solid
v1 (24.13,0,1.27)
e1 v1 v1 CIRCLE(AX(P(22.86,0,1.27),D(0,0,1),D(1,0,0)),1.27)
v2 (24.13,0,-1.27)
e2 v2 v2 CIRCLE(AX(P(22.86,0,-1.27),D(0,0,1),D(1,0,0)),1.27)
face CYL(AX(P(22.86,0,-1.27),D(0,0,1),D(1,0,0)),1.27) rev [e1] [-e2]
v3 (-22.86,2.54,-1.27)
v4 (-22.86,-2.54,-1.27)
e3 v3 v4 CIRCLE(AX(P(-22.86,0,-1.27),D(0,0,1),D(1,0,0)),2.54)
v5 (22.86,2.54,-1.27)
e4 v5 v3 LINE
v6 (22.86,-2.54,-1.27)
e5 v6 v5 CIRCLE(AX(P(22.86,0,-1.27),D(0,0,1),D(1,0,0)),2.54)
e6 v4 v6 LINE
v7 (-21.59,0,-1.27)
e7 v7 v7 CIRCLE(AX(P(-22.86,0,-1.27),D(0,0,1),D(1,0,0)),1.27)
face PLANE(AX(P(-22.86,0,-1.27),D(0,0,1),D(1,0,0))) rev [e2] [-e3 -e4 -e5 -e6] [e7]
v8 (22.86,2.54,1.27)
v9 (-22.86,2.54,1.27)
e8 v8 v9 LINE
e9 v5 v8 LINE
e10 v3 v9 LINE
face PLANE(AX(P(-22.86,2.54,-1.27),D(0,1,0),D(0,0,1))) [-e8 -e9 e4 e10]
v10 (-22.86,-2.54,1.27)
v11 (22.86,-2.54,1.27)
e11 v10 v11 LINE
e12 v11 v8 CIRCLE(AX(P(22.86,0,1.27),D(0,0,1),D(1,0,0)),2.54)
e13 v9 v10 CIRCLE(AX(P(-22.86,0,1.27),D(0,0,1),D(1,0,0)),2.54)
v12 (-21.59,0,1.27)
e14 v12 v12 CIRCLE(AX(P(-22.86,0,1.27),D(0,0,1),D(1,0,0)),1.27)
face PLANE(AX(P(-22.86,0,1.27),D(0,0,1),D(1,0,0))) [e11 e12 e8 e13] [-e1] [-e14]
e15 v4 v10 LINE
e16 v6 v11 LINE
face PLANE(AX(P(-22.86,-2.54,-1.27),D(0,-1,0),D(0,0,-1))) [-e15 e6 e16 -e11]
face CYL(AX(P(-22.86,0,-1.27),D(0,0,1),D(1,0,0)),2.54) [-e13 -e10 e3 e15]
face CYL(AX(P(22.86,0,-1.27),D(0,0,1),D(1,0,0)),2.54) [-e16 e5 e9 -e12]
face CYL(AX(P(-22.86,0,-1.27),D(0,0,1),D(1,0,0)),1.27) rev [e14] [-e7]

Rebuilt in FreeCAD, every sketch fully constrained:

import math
import FreeCAD as App
import Part
import Sketcher

V = App.Vector
Q = App.Units.Quantity

doc = App.newDocument("Part")
body = doc.addObject("PartDesign::Body", "Body")

sketch1 = doc.addObject("Sketcher::SketchObject", "Sketch")
body.addObject(sketch1)
sketch1.AttachmentSupport = (doc.XY_Plane, [""])
sketch1.MapMode = "FlatFace"
sketch1.addGeometry([
    Part.LineSegment(V(22.9, 2.5, 0), V(-22.9, 2.5, 0)),
    Part.ArcOfCircle(Part.Circle(V(-22.9, 0, 0), V(0, 0, 1), 2.5), math.radians(90), math.radians(270)),
    Part.LineSegment(V(-22.9, -2.5, 0), V(22.9, -2.5, 0)),
    Part.ArcOfCircle(Part.Circle(V(22.9, 0, 0), V(0, 0, 1), 2.5), math.radians(-90), math.radians(90)),
    Part.Circle(V(22.9, 0, 0), V(0, 0, 1), 1.3),
    Part.Circle(V(-22.9, 0, 0), V(0, 0, 1), 1.3),
], False)
sketch1.addConstraint([
    Sketcher.Constraint("Tangent", 0, 2, 1, 1),
    Sketcher.Constraint("Tangent", 1, 2, 2, 1),
    Sketcher.Constraint("Tangent", 2, 2, 3, 1),
    Sketcher.Constraint("Tangent", 3, 2, 0, 1),
    Sketcher.Constraint("Horizontal", 0),
    Sketcher.Constraint("Horizontal", 2),
    Sketcher.Constraint("Coincident", 4, 3, 3, 3),
    Sketcher.Constraint("Coincident", 5, 3, 1, 3),
    Sketcher.Constraint("Equal", 4, 5),
    Sketcher.Constraint("Symmetric", 1, 3, 3, 3, -1, 1),
    Sketcher.Constraint("Diameter", 4, Q("0.1 in")),
    Sketcher.Constraint("Radius", 1, Q("0.1 in")),
    Sketcher.Constraint("DistanceX", 0, 2, 0, 1, Q("1.8 in")),
])
pad1 = doc.addObject("PartDesign::Pad", "Pad")
body.addObject(pad1)
pad1.Profile = sketch1
pad1.Type = "TwoLengths"
pad1.Length = Q("0.05 in")
pad1.Length2 = Q("0.05 in")

doc.recompute()
